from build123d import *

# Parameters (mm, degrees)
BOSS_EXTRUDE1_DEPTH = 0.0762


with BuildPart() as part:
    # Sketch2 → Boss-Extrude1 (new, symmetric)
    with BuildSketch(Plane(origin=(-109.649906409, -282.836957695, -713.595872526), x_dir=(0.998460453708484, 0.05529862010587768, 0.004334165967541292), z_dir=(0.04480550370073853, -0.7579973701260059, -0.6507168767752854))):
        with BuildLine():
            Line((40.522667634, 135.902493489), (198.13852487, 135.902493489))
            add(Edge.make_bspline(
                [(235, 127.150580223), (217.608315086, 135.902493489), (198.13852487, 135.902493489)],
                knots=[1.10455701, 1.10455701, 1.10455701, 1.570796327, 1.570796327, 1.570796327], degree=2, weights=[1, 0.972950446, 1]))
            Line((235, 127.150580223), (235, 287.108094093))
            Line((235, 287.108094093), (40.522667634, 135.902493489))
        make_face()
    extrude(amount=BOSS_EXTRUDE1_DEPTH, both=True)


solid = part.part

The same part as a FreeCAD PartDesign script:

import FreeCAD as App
import Part
import Sketcher
from FreeCAD import Vector
Q = App.Units.Quantity

doc = App.newDocument("Part")
params = doc.addObject("Spreadsheet::Sheet", "Params")
for row, (alias, value) in enumerate([
    ("pad1_length", "0.006 in"),
], start=1):
    params.set(f"A{row}", alias)
    params.set(f"B{row}", "=" + value)
    params.setAlias(f"B{row}", alias)

body = doc.addObject("PartDesign::Body", "Body")

sketch1 = body.newObject("Sketcher::SketchObject", "Sketch")
sketch1.Placement = App.Placement(Vector(-109.649906, -282.836958, -713.595873), App.Rotation(Vector(0.998460454, 0.05529862, 0.004334166), Vector(0.032698459, -0.649909263, 0.759308081), Vector(0.044805504, -0.75799737, -0.650716877), "ZXY"))
sketch1.addGeometry(Part.LineSegment(Vector(40.522668, 135.902494, 0), Vector(198.138525, 135.902494, 0)), False)
sketch1.addGeometry(Part.BSplineCurve([Vector(235, 127.15058, 0), Vector(217.608315, 135.902494, 0), Vector(198.138525, 135.902494, 0)], [3, 3], [1.10455701, 1.570796327], False, 2, [1, 0.972950446, 1], False), False)
sketch1.addGeometry(Part.LineSegment(Vector(235, 127.15058, 0), Vector(235, 287.108094, 0)), False)
sketch1.addGeometry(Part.LineSegment(Vector(235, 287.108094, 0), Vector(40.522668, 135.902494, 0)), False)
sketch1.addConstraint(Sketcher.Constraint("Block", 1))
sketch1.addConstraint(Sketcher.Constraint("Coincident", 0, 2, 1, 2))
sketch1.addConstraint(Sketcher.Constraint("Coincident", 1, 1, 2, 1))
sketch1.addConstraint(Sketcher.Constraint("Coincident", 2, 2, 3, 1))
sketch1.addConstraint(Sketcher.Constraint("Coincident", 3, 2, 0, 1))
sketch1.addConstraint(Sketcher.Constraint("Horizontal", 0))
sketch1.addConstraint(Sketcher.Constraint("Vertical", 2))
sketch1.addConstraint(Sketcher.Constraint("DistanceY", 0, 2, 2, 2, Q("151.205601 mm")))
sketch1.addConstraint(Sketcher.Constraint("DistanceX", 0, 1, 0, 2, Q("157.615857 mm")))
pad1 = body.newObject("PartDesign::Pad", "Pad")
pad1.Profile = sketch1
pad1.setExpression("Length", "Params.pad1_length")
pad1.Midplane = True

doc.recompute()
